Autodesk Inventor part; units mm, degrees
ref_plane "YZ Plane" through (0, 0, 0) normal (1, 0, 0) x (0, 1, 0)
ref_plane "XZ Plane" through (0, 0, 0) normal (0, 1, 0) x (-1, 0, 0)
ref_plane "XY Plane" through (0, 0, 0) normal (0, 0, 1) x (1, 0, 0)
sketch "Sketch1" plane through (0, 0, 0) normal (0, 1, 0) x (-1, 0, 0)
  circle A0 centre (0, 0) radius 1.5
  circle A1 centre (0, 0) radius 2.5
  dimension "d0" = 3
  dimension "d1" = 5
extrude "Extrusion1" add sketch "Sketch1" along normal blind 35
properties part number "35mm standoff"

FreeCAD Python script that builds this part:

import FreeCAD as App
import Part
import Sketcher
from FreeCAD import Vector

doc = App.newDocument("Part")
body = doc.addObject("PartDesign::Body", "Body")

# Sketch on XZ plane
sketch1 = doc.addObject("Sketcher::SketchObject", "Sketch")
body.addObject(sketch1)
sketch1.AttachmentSupport = (doc.XZ_Plane, [""])
sketch1.MapMode = "FlatFace"
sketch1.addGeometry([
    Part.Circle(Vector(0, 0, 0), Vector(0, 0, 1), 2.5),
    Part.Circle(Vector(0, 0, 0), Vector(0, 0, 1), 1.5),
], False)
sketch1.addConstraint([
    Sketcher.Constraint("Coincident", 0, 3, -1, 1),
    Sketcher.Constraint("Coincident", 1, 3, -1, 1),
    Sketcher.Constraint("Diameter", 0, 5.0),
    Sketcher.Constraint("Diameter", 1, 3.0),
])
pad1 = doc.addObject("PartDesign::Pad", "Pad")
body.addObject(pad1)
pad1.Profile = sketch1
pad1.Length = 35
pad1.Reversed = True

doc.recompute()
